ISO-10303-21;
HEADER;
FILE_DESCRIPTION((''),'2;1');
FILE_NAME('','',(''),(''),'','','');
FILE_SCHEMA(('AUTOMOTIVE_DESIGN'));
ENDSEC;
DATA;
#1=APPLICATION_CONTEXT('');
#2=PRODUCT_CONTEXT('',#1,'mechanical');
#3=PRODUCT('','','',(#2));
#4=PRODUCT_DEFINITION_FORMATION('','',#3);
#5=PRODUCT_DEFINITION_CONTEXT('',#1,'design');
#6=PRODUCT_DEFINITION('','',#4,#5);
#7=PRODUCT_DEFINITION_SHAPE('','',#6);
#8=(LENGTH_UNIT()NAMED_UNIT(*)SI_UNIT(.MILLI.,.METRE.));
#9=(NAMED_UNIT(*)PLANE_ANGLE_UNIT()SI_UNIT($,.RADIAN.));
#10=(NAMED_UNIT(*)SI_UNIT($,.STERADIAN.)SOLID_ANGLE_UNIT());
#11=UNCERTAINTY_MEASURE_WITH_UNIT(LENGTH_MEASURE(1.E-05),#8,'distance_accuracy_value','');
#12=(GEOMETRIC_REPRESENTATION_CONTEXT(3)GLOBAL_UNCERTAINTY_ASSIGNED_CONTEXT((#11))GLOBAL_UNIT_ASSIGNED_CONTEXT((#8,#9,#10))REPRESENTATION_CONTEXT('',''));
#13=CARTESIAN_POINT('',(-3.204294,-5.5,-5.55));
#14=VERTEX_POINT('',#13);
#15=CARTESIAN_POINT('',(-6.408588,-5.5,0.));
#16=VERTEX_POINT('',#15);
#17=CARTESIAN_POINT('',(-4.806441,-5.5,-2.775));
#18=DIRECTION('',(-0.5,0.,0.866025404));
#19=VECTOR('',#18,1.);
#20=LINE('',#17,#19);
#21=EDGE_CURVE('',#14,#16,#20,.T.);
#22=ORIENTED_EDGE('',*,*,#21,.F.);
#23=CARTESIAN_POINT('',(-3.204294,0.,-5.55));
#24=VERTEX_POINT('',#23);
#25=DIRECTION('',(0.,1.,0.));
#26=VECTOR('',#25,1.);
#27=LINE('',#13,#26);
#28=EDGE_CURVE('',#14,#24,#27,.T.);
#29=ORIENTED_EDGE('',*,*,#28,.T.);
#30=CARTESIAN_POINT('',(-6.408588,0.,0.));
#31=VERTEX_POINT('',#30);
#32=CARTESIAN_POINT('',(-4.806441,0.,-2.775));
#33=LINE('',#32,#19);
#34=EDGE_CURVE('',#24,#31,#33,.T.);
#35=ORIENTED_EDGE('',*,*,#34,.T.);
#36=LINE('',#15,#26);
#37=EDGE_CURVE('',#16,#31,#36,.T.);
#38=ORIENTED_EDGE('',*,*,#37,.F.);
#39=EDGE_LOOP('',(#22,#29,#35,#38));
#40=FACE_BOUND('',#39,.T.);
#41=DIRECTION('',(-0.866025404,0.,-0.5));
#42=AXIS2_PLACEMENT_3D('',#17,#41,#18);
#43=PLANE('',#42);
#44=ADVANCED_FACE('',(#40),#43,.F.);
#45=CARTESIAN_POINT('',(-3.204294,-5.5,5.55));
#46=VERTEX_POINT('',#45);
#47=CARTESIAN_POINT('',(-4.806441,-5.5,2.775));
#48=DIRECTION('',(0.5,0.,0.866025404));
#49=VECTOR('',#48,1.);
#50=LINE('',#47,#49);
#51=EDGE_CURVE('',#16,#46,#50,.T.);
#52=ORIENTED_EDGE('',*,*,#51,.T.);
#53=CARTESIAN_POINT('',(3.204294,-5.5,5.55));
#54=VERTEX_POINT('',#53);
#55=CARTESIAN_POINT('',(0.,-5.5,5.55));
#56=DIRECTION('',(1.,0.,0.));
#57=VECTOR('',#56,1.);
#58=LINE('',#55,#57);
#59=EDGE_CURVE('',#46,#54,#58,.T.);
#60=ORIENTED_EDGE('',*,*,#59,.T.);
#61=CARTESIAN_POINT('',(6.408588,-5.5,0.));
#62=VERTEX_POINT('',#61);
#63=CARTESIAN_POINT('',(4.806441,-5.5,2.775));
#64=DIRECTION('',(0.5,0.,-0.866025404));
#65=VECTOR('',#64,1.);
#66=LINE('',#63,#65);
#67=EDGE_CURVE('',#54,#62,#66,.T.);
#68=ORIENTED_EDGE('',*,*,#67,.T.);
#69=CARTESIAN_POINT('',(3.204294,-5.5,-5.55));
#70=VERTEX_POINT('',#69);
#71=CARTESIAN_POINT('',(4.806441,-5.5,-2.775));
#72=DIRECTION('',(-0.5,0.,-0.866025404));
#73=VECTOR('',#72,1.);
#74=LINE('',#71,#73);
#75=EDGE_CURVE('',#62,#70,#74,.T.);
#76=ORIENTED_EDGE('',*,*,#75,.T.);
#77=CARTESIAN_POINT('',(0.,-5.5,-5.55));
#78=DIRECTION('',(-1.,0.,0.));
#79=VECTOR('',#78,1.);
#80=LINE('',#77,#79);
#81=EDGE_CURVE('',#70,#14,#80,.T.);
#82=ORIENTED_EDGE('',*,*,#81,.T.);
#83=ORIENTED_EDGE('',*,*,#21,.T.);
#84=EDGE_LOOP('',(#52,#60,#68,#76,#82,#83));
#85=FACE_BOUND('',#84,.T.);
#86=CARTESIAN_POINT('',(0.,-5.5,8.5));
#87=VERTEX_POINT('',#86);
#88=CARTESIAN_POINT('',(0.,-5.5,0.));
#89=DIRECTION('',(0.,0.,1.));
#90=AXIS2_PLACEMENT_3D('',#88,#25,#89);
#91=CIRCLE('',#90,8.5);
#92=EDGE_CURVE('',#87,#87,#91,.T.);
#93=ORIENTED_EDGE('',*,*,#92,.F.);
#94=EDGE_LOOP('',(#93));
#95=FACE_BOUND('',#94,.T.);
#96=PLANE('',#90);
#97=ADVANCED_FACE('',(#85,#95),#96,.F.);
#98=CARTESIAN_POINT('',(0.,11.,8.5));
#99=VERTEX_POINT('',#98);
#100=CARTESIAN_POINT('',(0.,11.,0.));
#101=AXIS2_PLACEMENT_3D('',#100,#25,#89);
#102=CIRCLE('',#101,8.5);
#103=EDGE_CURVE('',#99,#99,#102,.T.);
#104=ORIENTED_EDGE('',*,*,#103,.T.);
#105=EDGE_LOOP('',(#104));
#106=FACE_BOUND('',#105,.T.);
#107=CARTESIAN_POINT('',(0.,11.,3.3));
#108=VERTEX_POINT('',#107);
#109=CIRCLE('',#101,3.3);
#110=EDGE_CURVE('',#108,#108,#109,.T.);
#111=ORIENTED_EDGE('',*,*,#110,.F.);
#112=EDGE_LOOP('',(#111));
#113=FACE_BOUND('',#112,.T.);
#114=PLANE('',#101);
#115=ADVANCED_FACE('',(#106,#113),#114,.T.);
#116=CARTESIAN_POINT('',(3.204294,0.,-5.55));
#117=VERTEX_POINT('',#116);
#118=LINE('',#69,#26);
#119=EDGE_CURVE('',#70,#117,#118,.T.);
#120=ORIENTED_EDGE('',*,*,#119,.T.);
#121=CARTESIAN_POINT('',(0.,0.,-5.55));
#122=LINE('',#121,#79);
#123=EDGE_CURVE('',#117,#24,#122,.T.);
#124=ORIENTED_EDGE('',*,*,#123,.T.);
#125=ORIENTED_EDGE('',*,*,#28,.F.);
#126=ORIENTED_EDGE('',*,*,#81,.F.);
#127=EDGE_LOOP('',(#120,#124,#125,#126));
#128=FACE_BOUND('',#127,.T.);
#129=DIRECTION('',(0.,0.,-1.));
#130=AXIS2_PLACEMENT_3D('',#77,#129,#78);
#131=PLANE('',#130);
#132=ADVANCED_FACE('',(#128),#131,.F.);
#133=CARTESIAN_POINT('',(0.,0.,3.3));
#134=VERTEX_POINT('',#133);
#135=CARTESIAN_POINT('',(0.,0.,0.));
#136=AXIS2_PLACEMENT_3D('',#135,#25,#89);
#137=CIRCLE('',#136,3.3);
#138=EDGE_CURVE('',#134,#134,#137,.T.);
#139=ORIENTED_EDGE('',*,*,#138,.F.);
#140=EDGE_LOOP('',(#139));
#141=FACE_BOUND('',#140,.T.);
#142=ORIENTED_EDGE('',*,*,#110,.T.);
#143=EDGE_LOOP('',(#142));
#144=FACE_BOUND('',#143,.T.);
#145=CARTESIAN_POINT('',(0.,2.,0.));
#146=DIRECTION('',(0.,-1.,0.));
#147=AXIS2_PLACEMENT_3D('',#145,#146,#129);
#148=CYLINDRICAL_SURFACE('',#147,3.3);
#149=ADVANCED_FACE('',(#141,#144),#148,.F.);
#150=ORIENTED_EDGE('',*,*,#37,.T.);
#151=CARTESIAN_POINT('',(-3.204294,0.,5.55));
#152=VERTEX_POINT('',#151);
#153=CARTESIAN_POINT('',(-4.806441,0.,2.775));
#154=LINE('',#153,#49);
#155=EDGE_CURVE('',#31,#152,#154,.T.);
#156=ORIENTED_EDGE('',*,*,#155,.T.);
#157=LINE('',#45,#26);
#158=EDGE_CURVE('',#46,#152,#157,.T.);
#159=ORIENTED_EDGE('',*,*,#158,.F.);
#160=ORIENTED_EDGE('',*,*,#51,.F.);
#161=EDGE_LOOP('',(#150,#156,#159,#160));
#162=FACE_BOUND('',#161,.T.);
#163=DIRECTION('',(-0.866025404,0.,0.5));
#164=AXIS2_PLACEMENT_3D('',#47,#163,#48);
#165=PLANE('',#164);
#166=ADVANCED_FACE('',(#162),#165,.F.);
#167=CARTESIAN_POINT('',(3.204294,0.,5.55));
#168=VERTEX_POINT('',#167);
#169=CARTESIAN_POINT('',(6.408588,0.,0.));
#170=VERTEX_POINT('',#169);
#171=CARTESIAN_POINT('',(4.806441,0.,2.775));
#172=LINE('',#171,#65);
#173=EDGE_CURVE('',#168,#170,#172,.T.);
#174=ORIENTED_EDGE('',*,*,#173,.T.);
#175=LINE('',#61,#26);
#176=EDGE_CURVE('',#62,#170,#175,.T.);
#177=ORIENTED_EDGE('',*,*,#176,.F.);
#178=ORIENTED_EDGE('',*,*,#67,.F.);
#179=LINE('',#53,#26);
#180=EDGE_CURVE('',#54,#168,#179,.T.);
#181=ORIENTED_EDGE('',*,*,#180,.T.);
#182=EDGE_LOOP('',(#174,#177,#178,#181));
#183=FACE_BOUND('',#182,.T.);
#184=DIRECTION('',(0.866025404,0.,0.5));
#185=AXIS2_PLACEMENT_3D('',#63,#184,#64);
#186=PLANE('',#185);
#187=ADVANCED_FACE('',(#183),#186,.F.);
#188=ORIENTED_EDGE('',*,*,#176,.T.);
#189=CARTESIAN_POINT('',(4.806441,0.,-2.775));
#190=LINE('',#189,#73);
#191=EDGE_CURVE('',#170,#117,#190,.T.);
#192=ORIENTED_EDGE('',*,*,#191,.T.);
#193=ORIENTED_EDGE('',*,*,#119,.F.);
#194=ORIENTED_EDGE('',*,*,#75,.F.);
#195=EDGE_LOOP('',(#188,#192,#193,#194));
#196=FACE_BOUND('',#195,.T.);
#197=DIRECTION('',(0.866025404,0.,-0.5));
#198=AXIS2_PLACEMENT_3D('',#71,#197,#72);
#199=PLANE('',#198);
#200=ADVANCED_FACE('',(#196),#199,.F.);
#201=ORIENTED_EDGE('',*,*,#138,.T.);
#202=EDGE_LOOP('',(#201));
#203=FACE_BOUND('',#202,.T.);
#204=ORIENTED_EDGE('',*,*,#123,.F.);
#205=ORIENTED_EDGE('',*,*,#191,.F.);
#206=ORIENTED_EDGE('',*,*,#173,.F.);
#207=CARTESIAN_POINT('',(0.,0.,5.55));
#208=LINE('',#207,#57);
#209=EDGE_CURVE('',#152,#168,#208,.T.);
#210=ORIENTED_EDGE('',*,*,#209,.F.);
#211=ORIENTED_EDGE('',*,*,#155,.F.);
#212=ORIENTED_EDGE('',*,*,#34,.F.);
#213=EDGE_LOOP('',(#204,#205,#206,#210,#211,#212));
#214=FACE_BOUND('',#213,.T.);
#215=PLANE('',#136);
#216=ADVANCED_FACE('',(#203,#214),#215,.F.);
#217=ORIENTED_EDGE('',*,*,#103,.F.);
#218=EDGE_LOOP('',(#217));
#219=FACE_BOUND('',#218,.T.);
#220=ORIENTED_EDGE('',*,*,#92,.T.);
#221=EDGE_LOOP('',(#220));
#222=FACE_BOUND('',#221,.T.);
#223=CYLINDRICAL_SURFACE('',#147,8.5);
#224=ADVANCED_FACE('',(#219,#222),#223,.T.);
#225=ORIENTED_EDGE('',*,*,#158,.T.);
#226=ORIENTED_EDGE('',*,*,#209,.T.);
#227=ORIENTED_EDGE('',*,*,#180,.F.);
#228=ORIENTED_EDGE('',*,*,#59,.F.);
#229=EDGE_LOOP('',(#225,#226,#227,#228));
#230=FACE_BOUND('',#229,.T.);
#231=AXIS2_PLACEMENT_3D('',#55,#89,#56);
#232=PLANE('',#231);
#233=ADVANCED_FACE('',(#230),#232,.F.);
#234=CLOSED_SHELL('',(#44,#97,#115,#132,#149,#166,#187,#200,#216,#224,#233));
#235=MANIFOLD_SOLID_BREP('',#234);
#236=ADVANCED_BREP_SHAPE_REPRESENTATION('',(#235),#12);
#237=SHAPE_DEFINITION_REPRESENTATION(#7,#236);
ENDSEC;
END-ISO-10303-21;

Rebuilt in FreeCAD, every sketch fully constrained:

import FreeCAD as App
import Part
import Sketcher

V = App.Vector
Q = App.Units.Quantity


def add_polygon(sketch, points):
    """Adds a closed chain of lines whose ends are joined by coincident constraints."""
    first, n = sketch.GeometryCount, len(points)
    for a, b in zip(points, points[1:] + points[:1]):
        sketch.addGeometry(Part.LineSegment(App.Vector(*a, 0), App.Vector(*b, 0)), False)
    for i in range(n):
        sketch.addConstraint(Sketcher.Constraint("Coincident", first + i, 2, first + (i + 1) % n, 1))

doc = App.newDocument("Part")
body = doc.addObject("PartDesign::Body", "Body")

sketch1 = body.newObject("Sketcher::SketchObject", "Sketch")
sketch1.AttachmentSupport = (doc.getObject("XZ_Plane"), [""])
sketch1.MapMode = "FlatFace"
sketch1.addGeometry([
    Part.Circle(V(0, 0, 0), V(0, 0, 1), 8.5),
    Part.Circle(V(0, 0, 0), V(0, 0, 1), 3.3),
], False)
sketch1.addConstraint([
    Sketcher.Constraint("Coincident", 0, 3, -1, 1),
    Sketcher.Constraint("Coincident", 1, 3, -1, 1),
    Sketcher.Constraint("Diameter", 0, 17.0),
    Sketcher.Constraint("Diameter", 1, 6.6),
])
pad1 = body.newObject("PartDesign::Pad", "Pad")
pad1.Profile = sketch1
pad1.Length = 2
pad1.Reversed = True

sketch2 = body.newObject("Sketcher::SketchObject", "Sketch001")
sketch2.AttachmentSupport = (doc.getObject("XZ_Plane"), [""])
sketch2.MapMode = "FlatFace"
sketch2.addGeometry(Part.Circle(V(0, 0, 0), V(0, 0, 1), 8), False)
add_polygon(sketch2, [(-6, 0), (-3, -6), (3, -6), (6, 0), (3, 6), (-3, 6)])
sketch2.addConstraint([
    Sketcher.Constraint("Horizontal", 2),
    Sketcher.Constraint("Horizontal", 5),
    Sketcher.Constraint("Coincident", 0, 3, -1, 1),
    Sketcher.Constraint("Symmetric", 1, 2, 4, 2, -1, 1),
    Sketcher.Constraint("Symmetric", 3, 2, 6, 2, -1, 1),
    Sketcher.Constraint("PointOnObject", 3, 2, -1),
    Sketcher.Constraint("Parallel", 3, 6),
    Sketcher.Constraint("Vertical", 2, 2, 4, 2),
    Sketcher.Constraint("Diameter", 0, 17.0),
    Sketcher.Constraint("Angle", 1, Q("-60 deg")),
    Sketcher.Constraint("DistanceY", 2, 2, 4, 2, 11.1),
    Sketcher.Constraint("DistanceX", 2, 1, 2, 2, 6.408588),
])
pad2 = body.newObject("PartDesign::Pad", "Pad001")
pad2.Profile = sketch2
pad2.Length = 5.5

sketch3 = body.newObject("Sketcher::SketchObject", "Sketch002")
sketch3.AttachmentSupport = (doc.getObject("XZ_Plane"), [""])
sketch3.MapMode = "FlatFace"
sketch3.AttachmentOffset = App.Placement(V(0, 0, -2), App.Rotation())
sketch3.addGeometry([
    Part.Circle(V(0, 0, 0), V(0, 0, 1), 8.5),
    Part.Circle(V(0, 0, 0), V(0, 0, 1), 3.3),
], False)
sketch3.addConstraint([
    Sketcher.Constraint("Coincident", 0, 3, -1, 1),
    Sketcher.Constraint("Coincident", 1, 3, -1, 1),
    Sketcher.Constraint("Diameter", 0, 17.0),
    Sketcher.Constraint("Diameter", 1, 6.6),
])
pad3 = body.newObject("PartDesign::Pad", "Pad002")
pad3.Profile = sketch3
pad3.Length = 9
pad3.Reversed = True

doc.recompute()
